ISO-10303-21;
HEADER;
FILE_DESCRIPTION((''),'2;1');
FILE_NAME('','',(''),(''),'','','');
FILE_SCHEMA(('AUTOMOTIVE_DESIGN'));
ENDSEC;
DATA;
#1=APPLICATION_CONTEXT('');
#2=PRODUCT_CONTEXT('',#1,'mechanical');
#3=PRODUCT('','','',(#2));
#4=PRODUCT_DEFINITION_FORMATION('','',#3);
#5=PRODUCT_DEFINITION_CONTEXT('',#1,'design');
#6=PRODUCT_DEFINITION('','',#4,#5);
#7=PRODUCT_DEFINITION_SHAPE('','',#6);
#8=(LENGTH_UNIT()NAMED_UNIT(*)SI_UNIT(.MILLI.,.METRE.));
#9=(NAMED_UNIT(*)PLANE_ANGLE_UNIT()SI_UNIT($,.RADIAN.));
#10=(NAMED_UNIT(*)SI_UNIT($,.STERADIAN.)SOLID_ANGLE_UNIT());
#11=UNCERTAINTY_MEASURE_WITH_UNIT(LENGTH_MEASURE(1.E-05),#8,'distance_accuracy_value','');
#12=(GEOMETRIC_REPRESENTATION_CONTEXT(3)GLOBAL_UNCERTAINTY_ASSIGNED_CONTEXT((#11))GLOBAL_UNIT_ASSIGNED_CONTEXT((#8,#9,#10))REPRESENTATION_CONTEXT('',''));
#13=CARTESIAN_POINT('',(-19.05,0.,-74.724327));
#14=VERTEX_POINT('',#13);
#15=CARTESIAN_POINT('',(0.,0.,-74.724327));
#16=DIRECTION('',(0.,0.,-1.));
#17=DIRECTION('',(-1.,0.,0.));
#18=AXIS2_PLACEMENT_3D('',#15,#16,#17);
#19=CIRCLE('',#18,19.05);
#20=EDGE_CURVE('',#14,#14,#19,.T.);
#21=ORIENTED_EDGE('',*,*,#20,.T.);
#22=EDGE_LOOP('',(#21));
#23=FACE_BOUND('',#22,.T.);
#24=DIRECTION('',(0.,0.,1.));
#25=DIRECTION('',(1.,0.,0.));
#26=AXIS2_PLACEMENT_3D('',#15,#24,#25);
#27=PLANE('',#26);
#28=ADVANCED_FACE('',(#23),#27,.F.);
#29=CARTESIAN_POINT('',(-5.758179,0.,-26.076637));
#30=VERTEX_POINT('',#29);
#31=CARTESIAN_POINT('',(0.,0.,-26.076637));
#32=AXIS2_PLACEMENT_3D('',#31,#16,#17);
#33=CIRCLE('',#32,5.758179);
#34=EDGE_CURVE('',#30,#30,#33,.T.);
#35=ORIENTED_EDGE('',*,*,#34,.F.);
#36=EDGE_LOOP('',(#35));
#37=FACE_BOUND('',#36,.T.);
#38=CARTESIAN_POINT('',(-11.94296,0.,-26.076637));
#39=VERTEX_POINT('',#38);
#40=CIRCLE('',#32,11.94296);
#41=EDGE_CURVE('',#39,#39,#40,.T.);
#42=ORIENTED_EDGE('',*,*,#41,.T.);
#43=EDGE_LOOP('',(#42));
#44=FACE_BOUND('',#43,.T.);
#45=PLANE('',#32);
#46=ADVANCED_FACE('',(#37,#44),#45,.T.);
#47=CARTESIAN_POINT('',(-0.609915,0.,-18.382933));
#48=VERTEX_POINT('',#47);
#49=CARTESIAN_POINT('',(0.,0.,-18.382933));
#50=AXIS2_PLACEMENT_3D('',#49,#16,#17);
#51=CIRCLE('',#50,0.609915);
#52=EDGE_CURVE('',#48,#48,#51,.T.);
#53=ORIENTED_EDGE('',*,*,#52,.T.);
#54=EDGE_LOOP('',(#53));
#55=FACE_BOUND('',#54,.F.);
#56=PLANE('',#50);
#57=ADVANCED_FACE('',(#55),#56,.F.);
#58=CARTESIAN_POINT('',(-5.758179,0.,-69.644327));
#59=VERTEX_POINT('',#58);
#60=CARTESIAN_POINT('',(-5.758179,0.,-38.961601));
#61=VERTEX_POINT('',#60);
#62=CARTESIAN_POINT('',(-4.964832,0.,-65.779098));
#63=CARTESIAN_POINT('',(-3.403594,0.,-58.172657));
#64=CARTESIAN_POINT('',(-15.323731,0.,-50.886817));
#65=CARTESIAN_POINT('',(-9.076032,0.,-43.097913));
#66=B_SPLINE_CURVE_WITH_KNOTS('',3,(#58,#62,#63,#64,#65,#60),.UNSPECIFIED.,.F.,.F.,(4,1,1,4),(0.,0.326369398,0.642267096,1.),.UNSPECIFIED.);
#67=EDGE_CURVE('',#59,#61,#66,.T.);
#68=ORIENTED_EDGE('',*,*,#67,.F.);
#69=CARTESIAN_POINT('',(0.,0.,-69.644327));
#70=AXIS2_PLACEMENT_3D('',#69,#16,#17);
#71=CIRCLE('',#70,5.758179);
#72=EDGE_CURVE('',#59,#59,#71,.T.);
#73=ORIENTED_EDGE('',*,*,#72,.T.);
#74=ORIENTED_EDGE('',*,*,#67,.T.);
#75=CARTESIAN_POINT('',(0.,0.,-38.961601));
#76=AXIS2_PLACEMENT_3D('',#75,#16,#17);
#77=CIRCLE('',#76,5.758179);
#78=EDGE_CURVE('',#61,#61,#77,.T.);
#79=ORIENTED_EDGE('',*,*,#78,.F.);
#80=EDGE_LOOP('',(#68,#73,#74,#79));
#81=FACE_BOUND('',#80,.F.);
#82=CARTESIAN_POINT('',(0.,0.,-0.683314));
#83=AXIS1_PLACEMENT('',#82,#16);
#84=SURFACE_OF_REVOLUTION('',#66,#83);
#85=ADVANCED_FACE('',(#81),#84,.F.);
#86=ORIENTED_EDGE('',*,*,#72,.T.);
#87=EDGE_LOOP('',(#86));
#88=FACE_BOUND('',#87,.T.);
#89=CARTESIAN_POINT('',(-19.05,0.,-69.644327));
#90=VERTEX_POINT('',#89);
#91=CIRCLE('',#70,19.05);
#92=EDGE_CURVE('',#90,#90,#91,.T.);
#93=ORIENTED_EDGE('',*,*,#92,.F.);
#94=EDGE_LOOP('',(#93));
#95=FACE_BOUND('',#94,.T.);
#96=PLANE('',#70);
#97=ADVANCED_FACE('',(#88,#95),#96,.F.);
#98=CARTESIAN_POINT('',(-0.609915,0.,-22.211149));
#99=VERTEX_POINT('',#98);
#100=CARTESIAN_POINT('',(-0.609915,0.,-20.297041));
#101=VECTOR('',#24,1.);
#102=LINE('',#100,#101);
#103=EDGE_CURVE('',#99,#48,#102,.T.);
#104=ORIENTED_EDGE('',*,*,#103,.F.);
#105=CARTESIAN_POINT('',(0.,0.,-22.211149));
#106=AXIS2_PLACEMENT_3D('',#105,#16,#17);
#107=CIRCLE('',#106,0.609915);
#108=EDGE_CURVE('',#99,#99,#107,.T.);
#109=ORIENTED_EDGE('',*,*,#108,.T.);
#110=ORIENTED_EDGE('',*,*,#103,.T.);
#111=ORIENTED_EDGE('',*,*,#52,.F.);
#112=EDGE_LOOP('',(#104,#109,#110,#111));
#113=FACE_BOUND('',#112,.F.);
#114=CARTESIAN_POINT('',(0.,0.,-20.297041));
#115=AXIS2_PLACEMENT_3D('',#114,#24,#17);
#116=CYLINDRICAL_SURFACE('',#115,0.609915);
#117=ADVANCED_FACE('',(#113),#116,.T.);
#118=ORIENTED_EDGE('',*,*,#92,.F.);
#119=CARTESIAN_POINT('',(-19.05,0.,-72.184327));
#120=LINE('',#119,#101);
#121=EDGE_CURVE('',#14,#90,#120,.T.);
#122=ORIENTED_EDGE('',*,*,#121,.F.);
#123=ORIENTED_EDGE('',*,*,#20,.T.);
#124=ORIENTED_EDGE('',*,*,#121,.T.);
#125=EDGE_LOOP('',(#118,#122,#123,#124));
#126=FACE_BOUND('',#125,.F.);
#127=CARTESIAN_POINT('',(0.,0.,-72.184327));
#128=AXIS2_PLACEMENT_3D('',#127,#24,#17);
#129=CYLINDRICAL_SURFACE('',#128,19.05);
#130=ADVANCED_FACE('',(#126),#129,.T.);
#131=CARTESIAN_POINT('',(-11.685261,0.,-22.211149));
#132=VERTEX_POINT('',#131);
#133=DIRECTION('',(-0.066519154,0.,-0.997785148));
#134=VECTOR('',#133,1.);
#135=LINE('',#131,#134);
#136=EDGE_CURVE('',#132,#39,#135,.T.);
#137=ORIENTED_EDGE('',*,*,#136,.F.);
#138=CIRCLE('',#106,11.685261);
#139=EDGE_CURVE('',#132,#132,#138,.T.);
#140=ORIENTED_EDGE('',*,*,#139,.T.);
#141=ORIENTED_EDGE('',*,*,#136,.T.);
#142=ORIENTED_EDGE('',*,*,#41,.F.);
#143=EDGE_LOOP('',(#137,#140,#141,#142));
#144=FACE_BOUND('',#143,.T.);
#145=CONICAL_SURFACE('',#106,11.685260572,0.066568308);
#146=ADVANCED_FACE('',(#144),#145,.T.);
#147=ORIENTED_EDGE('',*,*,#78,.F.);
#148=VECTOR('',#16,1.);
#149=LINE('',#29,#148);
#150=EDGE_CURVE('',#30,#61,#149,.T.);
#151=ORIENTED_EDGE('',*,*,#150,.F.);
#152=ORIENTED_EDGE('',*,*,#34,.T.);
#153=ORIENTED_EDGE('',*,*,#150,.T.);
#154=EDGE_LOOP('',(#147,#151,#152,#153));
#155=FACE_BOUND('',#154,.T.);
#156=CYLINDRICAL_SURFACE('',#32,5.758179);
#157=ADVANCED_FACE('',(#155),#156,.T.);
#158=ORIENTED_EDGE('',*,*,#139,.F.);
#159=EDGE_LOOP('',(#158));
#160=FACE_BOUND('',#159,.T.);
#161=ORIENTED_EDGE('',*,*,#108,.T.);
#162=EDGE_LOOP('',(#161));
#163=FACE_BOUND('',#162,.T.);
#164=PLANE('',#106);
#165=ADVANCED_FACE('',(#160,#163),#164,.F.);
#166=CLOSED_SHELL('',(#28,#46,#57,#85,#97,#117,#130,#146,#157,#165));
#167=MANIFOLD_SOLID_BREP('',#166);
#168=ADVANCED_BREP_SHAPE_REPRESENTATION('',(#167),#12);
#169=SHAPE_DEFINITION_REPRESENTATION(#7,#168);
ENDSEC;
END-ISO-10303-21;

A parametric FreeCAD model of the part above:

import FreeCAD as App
import Part
import Sketcher

V = App.Vector
Q = App.Units.Quantity

doc = App.newDocument("Part")
body = doc.addObject("PartDesign::Body", "Body")

sketch1 = body.newObject("Sketcher::SketchObject", "Sketch")
sketch1.AttachmentSupport = (doc.getObject("XZ_Plane"), [""])
sketch1.MapMode = "FlatFace"
sketch1.addGeometry(Part.LineSegment(V(-19.05, -69.644327, 0), V(-19.05, -74.724327, 0)), False)
sketch1.addGeometry(Part.LineSegment(V(-19.05, -74.724327, 0), V(0, -74.724327, 0)), False)
sketch1.addGeometry(Part.LineSegment(V(0, -74.724327, 0), V(0, -18.382933, 0)), False)
sketch1.addGeometry(Part.LineSegment(V(0, -18.382933, 0), V(-0.609915, -18.382933, 0)), False)
sketch1.addGeometry(Part.LineSegment(V(-0.609915, -18.382933, 0), V(-0.609915, -22.211149, 0)), False)
sketch1.addGeometry(Part.LineSegment(V(-0.609915, -22.211149, 0), V(-11.685261, -22.211149, 0)), False)
sketch1.addGeometry(Part.LineSegment(V(-11.685261, -22.211149, 0), V(-11.94296, -26.076637, 0)), False)
sketch1.addGeometry(Part.LineSegment(V(-11.94296, -26.076637, 0), V(-5.758179, -26.076637, 0)), False)
sketch1.addGeometry(Part.LineSegment(V(-5.758179, -26.076637, 0), V(-5.758179, -38.961601, 0)), False)
sketch1.addGeometry(Part.BSplineCurve([V(-5.758179, -69.644327, 0), V(-4.964832, -65.779098, 0), V(-3.403594, -58.172657, 0), V(-15.323731, -50.886817, 0), V(-9.076032, -43.097913, 0), V(-5.758179, -38.961601, 0)], [4, 1, 1, 4], [0, 0.326369398, 0.642267096, 1], False, 3, [1, 1, 1, 1, 1, 1], False), False)
sketch1.addGeometry(Part.LineSegment(V(-5.758179, -69.644327, 0), V(-19.05, -69.644327, 0)), False)
sketch1.addConstraint(Sketcher.Constraint("Block", 9))
sketch1.addConstraint(Sketcher.Constraint("Coincident", 0, 2, 1, 1))
sketch1.addConstraint(Sketcher.Constraint("Coincident", 1, 2, 2, 1))
sketch1.addConstraint(Sketcher.Constraint("Coincident", 2, 2, 3, 1))
sketch1.addConstraint(Sketcher.Constraint("Coincident", 3, 2, 4, 1))
sketch1.addConstraint(Sketcher.Constraint("Coincident", 4, 2, 5, 1))
sketch1.addConstraint(Sketcher.Constraint("Coincident", 5, 2, 6, 1))
sketch1.addConstraint(Sketcher.Constraint("Coincident", 6, 2, 7, 1))
sketch1.addConstraint(Sketcher.Constraint("Coincident", 7, 2, 8, 1))
sketch1.addConstraint(Sketcher.Constraint("Coincident", 8, 2, 9, 2))
sketch1.addConstraint(Sketcher.Constraint("Coincident", 9, 1, 10, 1))
sketch1.addConstraint(Sketcher.Constraint("Coincident", 10, 2, 0, 1))
sketch1.addConstraint(Sketcher.Constraint("Vertical", 0))
sketch1.addConstraint(Sketcher.Constraint("Horizontal", 1))
sketch1.addConstraint(Sketcher.Constraint("Vertical", 2))
sketch1.addConstraint(Sketcher.Constraint("Horizontal", 3))
sketch1.addConstraint(Sketcher.Constraint("Vertical", 4))
sketch1.addConstraint(Sketcher.Constraint("Horizontal", 5))
sketch1.addConstraint(Sketcher.Constraint("Horizontal", 7))
sketch1.addConstraint(Sketcher.Constraint("Vertical", 8))
sketch1.addConstraint(Sketcher.Constraint("Horizontal", 10))
sketch1.addConstraint(Sketcher.Constraint("PointOnObject", 1, 2, -2))
sketch1.addConstraint(Sketcher.Constraint("DistanceY", 0, 2, 0, 1, Q("0.2 in")))
sketch1.addConstraint(Sketcher.Constraint("DistanceX", 1, 1, 1, 2, Q("0.75 in")))
sketch1.addConstraint(Sketcher.Constraint("DistanceX", 7, 1, 7, 2, 6.184781))
sketch1.addConstraint(Sketcher.Constraint("DistanceX", 6, 2, 5, 2, 0.2577))
sketch1.addConstraint(Sketcher.Constraint("Distance", 6, 3.874068))
sketch1.addConstraint(Sketcher.Constraint("DistanceX", 3, 2, 3, 1, 0.609915))
sketch1.addConstraint(Sketcher.Constraint("DistanceY", 2, 1, 2, 2, 56.341394))
sketch1.addConstraint(Sketcher.Constraint("DistanceY", 4, 2, 4, 1, 3.828216))
revolution = body.newObject("PartDesign::Revolution", "Revolution")
revolution.Profile = sketch1
revolution.ReferenceAxis = (sketch1, ["V_Axis"])
revolution.Angle = 360

doc.recompute()
